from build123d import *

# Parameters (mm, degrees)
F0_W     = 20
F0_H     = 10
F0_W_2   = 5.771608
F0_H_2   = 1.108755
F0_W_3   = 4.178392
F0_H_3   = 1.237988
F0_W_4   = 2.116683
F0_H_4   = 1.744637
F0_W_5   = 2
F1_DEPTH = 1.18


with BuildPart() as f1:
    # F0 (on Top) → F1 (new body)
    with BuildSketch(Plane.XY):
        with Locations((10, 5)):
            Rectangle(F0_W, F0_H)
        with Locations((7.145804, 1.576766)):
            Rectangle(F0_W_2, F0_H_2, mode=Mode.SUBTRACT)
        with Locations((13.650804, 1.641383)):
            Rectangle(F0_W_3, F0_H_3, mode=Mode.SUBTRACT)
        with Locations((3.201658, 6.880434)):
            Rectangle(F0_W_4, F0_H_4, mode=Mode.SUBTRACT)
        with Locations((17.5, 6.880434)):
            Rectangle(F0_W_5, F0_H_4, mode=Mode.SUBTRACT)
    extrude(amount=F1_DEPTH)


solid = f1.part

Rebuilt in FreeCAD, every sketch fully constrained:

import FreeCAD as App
import Part
import Sketcher
Q = App.Units.Quantity

doc = App.newDocument("Part")
params = doc.addObject("Spreadsheet::Sheet", "Params")
for row, (alias, value) in enumerate([
    ("sketch1_width", "20 mm"),
    ("sketch1_width2", "2 mm"),
    ("sketch1_height", "10 mm"),
    ("pad1_length", "1.18 mm"),
], start=1):
    params.set(f"A{row}", alias)
    params.set(f"B{row}", "=" + value)
    params.setAlias(f"B{row}", alias)

body = doc.addObject("PartDesign::Body", "Body")

sketch1 = doc.addObject("Sketcher::SketchObject", "Sketch")
body.addObject(sketch1)
sketch1.AttachmentSupport = (doc.XY_Plane, [""])
sketch1.MapMode = "FlatFace"
sketch1.addGeometry([
    Part.LineSegment(App.Vector(0, 10, 0), App.Vector(0, 0, 0)),
    Part.LineSegment(App.Vector(0, 0, 0), App.Vector(20, 0, 0)),
    Part.LineSegment(App.Vector(20, 0, 0), App.Vector(20, 10, 0)),
    Part.LineSegment(App.Vector(20, 10, 0), App.Vector(0, 10, 0)),
    Part.LineSegment(App.Vector(10, 1, 0), App.Vector(4.3, 1, 0)),
    Part.LineSegment(App.Vector(4.3, 1, 0), App.Vector(4.3, 2.1, 0)),
    Part.LineSegment(App.Vector(4.3, 2.1, 0), App.Vector(10, 2.1, 0)),
    Part.LineSegment(App.Vector(10, 2.1, 0), App.Vector(10, 1, 0)),
    Part.LineSegment(App.Vector(15.7, 1, 0), App.Vector(11.6, 1, 0)),
    Part.LineSegment(App.Vector(11.6, 1, 0), App.Vector(11.6, 2.3, 0)),
    Part.LineSegment(App.Vector(11.6, 2.3, 0), App.Vector(15.7, 2.3, 0)),
    Part.LineSegment(App.Vector(15.7, 2.3, 0), App.Vector(15.7, 1, 0)),
    Part.LineSegment(App.Vector(4.3, 6, 0), App.Vector(2.1, 6, 0)),
    Part.LineSegment(App.Vector(2.1, 6, 0), App.Vector(2.1, 7.8, 0)),
    Part.LineSegment(App.Vector(2.1, 7.8, 0), App.Vector(4.3, 7.8, 0)),
    Part.LineSegment(App.Vector(4.3, 7.8, 0), App.Vector(4.3, 6, 0)),
    Part.LineSegment(App.Vector(18.5, 6, 0), App.Vector(16.5, 6, 0)),
    Part.LineSegment(App.Vector(16.5, 6, 0), App.Vector(16.5, 7.8, 0)),
    Part.LineSegment(App.Vector(16.5, 7.8, 0), App.Vector(18.5, 7.8, 0)),
    Part.LineSegment(App.Vector(18.5, 7.8, 0), App.Vector(18.5, 6, 0)),
], False)
sketch1.addConstraint([
    Sketcher.Constraint("Coincident", 0, 2, 1, 1),
    Sketcher.Constraint("Coincident", 1, 2, 2, 1),
    Sketcher.Constraint("Coincident", 2, 2, 3, 1),
    Sketcher.Constraint("Coincident", 3, 2, 0, 1),
    Sketcher.Constraint("Coincident", 4, 2, 5, 1),
    Sketcher.Constraint("Coincident", 5, 2, 6, 1),
    Sketcher.Constraint("Coincident", 6, 2, 7, 1),
    Sketcher.Constraint("Coincident", 7, 2, 4, 1),
    Sketcher.Constraint("Coincident", 8, 2, 9, 1),
    Sketcher.Constraint("Coincident", 9, 2, 10, 1),
    Sketcher.Constraint("Coincident", 10, 2, 11, 1),
    Sketcher.Constraint("Coincident", 11, 2, 8, 1),
    Sketcher.Constraint("Coincident", 12, 2, 13, 1),
    Sketcher.Constraint("Coincident", 13, 2, 14, 1),
    Sketcher.Constraint("Coincident", 14, 2, 15, 1),
    Sketcher.Constraint("Coincident", 15, 2, 12, 1),
    Sketcher.Constraint("Coincident", 16, 2, 17, 1),
    Sketcher.Constraint("Coincident", 17, 2, 18, 1),
    Sketcher.Constraint("Coincident", 18, 2, 19, 1),
    Sketcher.Constraint("Coincident", 19, 2, 16, 1),
    Sketcher.Constraint("Vertical", 0),
    Sketcher.Constraint("Horizontal", 1),
    Sketcher.Constraint("Vertical", 2),
    Sketcher.Constraint("Horizontal", 3),
    Sketcher.Constraint("Horizontal", 4),
    Sketcher.Constraint("Vertical", 5),
    Sketcher.Constraint("Horizontal", 6),
    Sketcher.Constraint("Vertical", 7),
    Sketcher.Constraint("Horizontal", 8),
    Sketcher.Constraint("Vertical", 9),
    Sketcher.Constraint("Horizontal", 10),
    Sketcher.Constraint("Vertical", 11),
    Sketcher.Constraint("Horizontal", 12),
    Sketcher.Constraint("Vertical", 13),
    Sketcher.Constraint("Horizontal", 14),
    Sketcher.Constraint("Vertical", 15),
    Sketcher.Constraint("Horizontal", 16),
    Sketcher.Constraint("Vertical", 17),
    Sketcher.Constraint("Horizontal", 18),
    Sketcher.Constraint("Vertical", 19),
    Sketcher.Constraint("Coincident", 0, 2, -1, 1),
    Sketcher.Constraint("Horizontal", 7, 2, 8, 2),
    Sketcher.Constraint("Horizontal", 15, 2, 16, 2),
    Sketcher.Constraint("Horizontal", 14, 2, 17, 2),
    Sketcher.Constraint("Vertical", 5, 2, 14, 2),
    Sketcher.Constraint("DistanceX", 1, 1, 1, 2, Q("20 mm")),
    Sketcher.Constraint("DistanceX", 16, 2, 16, 1, Q("2 mm")),
    Sketcher.Constraint("DistanceY", 0, 2, 0, 1, Q("10 mm")),
    Sketcher.Constraint("DistanceX", -1, 1, 16, 2, Q("16.5 mm")),
    Sketcher.Constraint("DistanceX", -1, 1, 4, 2, Q("4.26 mm")),
    Sketcher.Constraint("DistanceX", -1, 1, 10, 2, Q("15.74 mm")),
    Sketcher.Constraint("DistanceX", 7, 2, 8, 2, Q("1.53 mm")),
    Sketcher.Constraint("DistanceX", 4, 2, 4, 1, Q("5.771608 mm")),
    Sketcher.Constraint("DistanceY", 9, 1, 9, 2, Q("1.237988 mm")),
    Sketcher.Constraint("DistanceX", 12, 2, 12, 1, Q("2.116683 mm")),
    Sketcher.Constraint("DistanceY", 5, 1, 5, 2, Q("1.108755 mm")),
    Sketcher.Constraint("DistanceY", 13, 1, 13, 2, Q("1.744637 mm")),
    Sketcher.Constraint("DistanceY", -1, 1, 4, 2, Q("1.022388 mm")),
    Sketcher.Constraint("DistanceY", 5, 2, 12, 2, Q("3.876972 mm")),
])
sketch1.setExpression("Constraints[45]", "Params.sketch1_width")
sketch1.setExpression("Constraints[46]", "Params.sketch1_width2")
sketch1.setExpression("Constraints[47]", "Params.sketch1_height")
pad1 = doc.addObject("PartDesign::Pad", "Pad")
body.addObject(pad1)
pad1.Profile = sketch1
pad1.setExpression("Length", "Params.pad1_length")

doc.recompute()
